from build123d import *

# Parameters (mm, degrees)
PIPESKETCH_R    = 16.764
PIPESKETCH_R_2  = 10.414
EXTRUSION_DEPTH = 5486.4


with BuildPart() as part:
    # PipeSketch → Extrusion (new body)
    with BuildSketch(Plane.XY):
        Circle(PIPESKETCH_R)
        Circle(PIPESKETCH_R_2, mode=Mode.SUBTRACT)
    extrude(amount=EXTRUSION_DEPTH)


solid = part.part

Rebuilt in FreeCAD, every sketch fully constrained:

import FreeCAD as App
import Part
import Sketcher

V = App.Vector
Q = App.Units.Quantity

doc = App.newDocument("Part")
params = doc.addObject("Spreadsheet::Sheet", "Params")
for row, (alias, value) in enumerate([
    ("sketch1_diameter", "1.32 in"),
    ("sketch1_diameter2", "0.82 in"),
    ("pad1_length", "216 in"),
], start=1):
    params.set(f"A{row}", alias)
    params.set(f"B{row}", "=" + value)
    params.setAlias(f"B{row}", alias)

body = doc.addObject("PartDesign::Body", "Body")

# Sketch on XY plane
sketch1 = doc.addObject("Sketcher::SketchObject", "Sketch")
body.addObject(sketch1)
sketch1.AttachmentSupport = (doc.XY_Plane, [""])
sketch1.MapMode = "FlatFace"
sketch1.addGeometry([
    Part.Circle(V(0, 0, 0), V(0, 0, 1), 17),
    Part.Circle(V(0, 0, 0), V(0, 0, 1), 10),
], False)
sketch1.addConstraint([
    Sketcher.Constraint("Coincident", 0, 3, -1, 1),
    Sketcher.Constraint("Coincident", 1, 3, -1, 1),
    Sketcher.Constraint("Diameter", 0, Q("1.32 in")),
    Sketcher.Constraint("Diameter", 1, Q("0.82 in")),
])
sketch1.setExpression("Constraints[2]", "Params.sketch1_diameter")
sketch1.setExpression("Constraints[3]", "Params.sketch1_diameter2")
pad1 = doc.addObject("PartDesign::Pad", "Pad")
body.addObject(pad1)
pad1.Profile = sketch1
pad1.setExpression("Length", "Params.pad1_length")

doc.recompute()
